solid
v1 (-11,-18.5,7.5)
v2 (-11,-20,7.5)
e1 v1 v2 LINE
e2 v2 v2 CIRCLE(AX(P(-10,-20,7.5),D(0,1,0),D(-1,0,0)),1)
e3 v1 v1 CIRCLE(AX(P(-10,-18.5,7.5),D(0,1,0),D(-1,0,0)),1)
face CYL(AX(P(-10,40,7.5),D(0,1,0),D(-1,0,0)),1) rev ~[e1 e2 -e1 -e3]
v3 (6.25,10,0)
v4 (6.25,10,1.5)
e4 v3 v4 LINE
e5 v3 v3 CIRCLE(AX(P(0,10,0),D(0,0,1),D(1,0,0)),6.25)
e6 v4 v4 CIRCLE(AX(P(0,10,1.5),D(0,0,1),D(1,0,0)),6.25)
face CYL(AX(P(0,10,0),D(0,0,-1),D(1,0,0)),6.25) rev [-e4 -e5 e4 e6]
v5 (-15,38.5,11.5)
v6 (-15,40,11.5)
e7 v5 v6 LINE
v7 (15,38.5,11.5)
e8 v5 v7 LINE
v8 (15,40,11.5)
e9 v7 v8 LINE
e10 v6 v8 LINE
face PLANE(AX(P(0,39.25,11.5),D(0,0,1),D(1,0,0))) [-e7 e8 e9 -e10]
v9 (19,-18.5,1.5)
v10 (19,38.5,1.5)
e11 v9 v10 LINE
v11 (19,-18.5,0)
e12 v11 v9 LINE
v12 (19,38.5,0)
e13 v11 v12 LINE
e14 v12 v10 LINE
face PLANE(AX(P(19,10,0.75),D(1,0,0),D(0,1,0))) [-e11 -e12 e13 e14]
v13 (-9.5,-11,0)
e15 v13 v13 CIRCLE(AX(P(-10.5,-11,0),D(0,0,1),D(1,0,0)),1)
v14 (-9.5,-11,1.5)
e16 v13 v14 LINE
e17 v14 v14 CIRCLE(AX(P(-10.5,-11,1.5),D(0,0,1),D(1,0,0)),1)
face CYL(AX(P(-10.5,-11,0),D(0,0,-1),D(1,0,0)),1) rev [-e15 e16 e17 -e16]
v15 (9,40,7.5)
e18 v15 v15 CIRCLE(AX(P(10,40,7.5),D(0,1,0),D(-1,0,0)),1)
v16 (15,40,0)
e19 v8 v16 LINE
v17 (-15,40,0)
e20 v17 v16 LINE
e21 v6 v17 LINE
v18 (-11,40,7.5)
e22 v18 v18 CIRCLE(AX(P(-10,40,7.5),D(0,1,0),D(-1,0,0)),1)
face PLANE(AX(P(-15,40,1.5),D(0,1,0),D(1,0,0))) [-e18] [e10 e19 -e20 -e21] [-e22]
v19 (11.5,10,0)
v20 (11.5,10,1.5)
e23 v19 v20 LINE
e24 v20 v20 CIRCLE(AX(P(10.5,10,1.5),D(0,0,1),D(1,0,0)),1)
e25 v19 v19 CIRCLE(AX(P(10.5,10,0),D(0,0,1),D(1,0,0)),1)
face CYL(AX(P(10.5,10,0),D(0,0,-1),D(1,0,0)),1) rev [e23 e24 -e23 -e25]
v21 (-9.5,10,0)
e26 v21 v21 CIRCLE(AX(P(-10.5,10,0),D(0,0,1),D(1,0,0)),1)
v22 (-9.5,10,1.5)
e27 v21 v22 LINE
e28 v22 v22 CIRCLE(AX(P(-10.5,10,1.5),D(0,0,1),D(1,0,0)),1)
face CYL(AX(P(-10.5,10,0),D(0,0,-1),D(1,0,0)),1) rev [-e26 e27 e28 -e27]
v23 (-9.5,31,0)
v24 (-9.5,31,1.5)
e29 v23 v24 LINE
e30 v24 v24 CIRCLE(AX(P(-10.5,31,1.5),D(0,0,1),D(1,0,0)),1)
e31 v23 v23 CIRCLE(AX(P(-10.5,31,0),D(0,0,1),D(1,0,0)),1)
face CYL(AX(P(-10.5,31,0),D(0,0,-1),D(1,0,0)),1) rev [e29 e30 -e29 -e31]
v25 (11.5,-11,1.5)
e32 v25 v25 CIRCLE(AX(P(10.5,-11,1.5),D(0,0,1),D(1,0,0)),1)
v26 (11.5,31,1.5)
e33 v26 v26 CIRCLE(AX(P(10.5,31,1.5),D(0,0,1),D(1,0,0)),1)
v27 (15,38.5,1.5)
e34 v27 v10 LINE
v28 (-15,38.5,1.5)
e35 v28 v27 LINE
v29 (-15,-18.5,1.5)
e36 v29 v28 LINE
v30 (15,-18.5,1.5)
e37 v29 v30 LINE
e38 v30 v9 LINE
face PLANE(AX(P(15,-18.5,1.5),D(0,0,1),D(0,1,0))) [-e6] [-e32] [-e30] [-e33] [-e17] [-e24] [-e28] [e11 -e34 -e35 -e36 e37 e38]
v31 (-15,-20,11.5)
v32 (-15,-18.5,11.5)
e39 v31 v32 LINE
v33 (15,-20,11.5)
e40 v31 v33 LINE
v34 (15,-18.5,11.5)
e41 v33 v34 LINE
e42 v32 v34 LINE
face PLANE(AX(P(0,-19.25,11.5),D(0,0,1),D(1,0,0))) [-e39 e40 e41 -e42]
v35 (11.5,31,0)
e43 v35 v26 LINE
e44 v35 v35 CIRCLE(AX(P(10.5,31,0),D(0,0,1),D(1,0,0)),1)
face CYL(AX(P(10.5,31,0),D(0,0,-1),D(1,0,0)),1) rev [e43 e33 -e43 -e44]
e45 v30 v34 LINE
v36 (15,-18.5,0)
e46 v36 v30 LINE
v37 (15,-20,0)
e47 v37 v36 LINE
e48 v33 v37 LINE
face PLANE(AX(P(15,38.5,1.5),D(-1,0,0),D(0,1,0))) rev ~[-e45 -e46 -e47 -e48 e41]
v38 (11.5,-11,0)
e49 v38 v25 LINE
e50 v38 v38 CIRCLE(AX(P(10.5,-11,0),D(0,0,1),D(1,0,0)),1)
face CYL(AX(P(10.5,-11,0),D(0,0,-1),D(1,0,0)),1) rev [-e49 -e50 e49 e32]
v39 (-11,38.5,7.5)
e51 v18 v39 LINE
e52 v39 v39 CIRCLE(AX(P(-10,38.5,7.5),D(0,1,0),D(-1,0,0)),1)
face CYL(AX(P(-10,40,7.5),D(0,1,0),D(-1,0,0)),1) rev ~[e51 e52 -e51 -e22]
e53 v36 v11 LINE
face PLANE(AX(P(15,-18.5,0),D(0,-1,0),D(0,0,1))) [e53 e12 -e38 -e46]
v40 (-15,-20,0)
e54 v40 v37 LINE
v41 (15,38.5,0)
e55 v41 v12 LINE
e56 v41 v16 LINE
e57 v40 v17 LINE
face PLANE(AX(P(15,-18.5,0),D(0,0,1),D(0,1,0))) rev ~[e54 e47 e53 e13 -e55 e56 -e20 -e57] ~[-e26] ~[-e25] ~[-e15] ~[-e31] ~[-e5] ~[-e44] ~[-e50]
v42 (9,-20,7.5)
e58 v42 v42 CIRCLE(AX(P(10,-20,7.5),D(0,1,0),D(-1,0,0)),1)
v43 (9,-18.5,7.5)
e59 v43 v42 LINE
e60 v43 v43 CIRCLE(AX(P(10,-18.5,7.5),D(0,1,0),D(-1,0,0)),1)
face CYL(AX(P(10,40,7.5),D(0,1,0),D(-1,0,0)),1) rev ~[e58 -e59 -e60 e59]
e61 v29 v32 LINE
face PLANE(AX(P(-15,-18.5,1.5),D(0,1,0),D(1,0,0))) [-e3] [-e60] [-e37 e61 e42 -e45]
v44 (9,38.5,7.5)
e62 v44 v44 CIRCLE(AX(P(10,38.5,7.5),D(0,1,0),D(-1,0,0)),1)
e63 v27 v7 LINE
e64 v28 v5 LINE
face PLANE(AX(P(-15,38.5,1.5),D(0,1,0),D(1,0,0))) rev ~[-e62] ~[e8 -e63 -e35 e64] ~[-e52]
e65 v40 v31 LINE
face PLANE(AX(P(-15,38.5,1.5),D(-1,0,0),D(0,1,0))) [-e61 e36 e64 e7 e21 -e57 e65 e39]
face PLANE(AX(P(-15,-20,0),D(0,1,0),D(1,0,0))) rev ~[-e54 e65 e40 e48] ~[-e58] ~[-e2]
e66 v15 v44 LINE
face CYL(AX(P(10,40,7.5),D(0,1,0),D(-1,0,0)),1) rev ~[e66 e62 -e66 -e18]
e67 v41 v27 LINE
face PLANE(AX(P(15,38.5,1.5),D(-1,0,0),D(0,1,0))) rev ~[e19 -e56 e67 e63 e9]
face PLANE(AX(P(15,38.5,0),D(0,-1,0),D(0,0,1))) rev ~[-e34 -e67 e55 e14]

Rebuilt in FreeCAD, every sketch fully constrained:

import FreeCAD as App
import Part
import Sketcher
from FreeCAD import Vector
Q = App.Units.Quantity

doc = App.newDocument("Part")
body = doc.addObject("PartDesign::Body", "Body")

sketch1 = doc.addObject("Sketcher::SketchObject", "Sketch")
body.addObject(sketch1)
sketch1.AttachmentSupport = (doc.XY_Plane, [""])
sketch1.MapMode = "FlatFace"
sketch1.addGeometry(Part.LineSegment(Vector(-15, 40, 0), Vector(-15, -20, 0)), False)
sketch1.addGeometry(Part.LineSegment(Vector(-15, -20, 0), Vector(15, -20, 0)), False)
sketch1.addGeometry(Part.LineSegment(Vector(15, -20, 0), Vector(15, 40, 0)), False)
sketch1.addGeometry(Part.LineSegment(Vector(15, 40, 0), Vector(-15, 40, 0)), False)
sketch1.addGeometry(Part.Circle(Vector(-10.5, -11, 0), Vector(0, 0, 1), 1), False)
sketch1.addGeometry(Part.Circle(Vector(10.5, -11, 0), Vector(0, 0, 1), 1), False)
sketch1.addGeometry(Part.Circle(Vector(-10.5, 10, 0), Vector(0, 0, 1), 1), False)
sketch1.addGeometry(Part.Circle(Vector(-10.5, 31, 0), Vector(0, 0, 1), 1), False)
sketch1.addGeometry(Part.Circle(Vector(0, 10, 0), Vector(0, 0, 1), 6.25), False)
sketch1.addGeometry(Part.Circle(Vector(10.5, 10, 0), Vector(0, 0, 1), 1), False)
sketch1.addGeometry(Part.Circle(Vector(10.5, 31, 0), Vector(0, 0, 1), 1), False)
sketch1.addConstraint(Sketcher.Constraint("Coincident", 0, 2, 1, 1))
sketch1.addConstraint(Sketcher.Constraint("Coincident", 1, 2, 2, 1))
sketch1.addConstraint(Sketcher.Constraint("Coincident", 2, 2, 3, 1))
sketch1.addConstraint(Sketcher.Constraint("Coincident", 3, 2, 0, 1))
sketch1.addConstraint(Sketcher.Constraint("Vertical", 0))
sketch1.addConstraint(Sketcher.Constraint("Horizontal", 1))
sketch1.addConstraint(Sketcher.Constraint("Vertical", 2))
sketch1.addConstraint(Sketcher.Constraint("Horizontal", 3))
sketch1.addConstraint(Sketcher.Constraint("Equal", 4, 5))
sketch1.addConstraint(Sketcher.Constraint("Equal", 5, 6))
sketch1.addConstraint(Sketcher.Constraint("Equal", 6, 7))
sketch1.addConstraint(Sketcher.Constraint("Equal", 7, 9))
sketch1.addConstraint(Sketcher.Constraint("Equal", 9, 10))
sketch1.addConstraint(Sketcher.Constraint("Symmetric", 4, 3, 5, 3, -2))
sketch1.addConstraint(Sketcher.Constraint("Symmetric", 6, 3, 9, 3, -2))
sketch1.addConstraint(Sketcher.Constraint("Symmetric", 7, 3, 10, 3, -2))
sketch1.addConstraint(Sketcher.Constraint("PointOnObject", 8, 3, -2))
sketch1.addConstraint(Sketcher.Constraint("Horizontal", 6, 3, 8, 3))
sketch1.addConstraint(Sketcher.Constraint("Vertical", 4, 3, 6, 3))
sketch1.addConstraint(Sketcher.Constraint("Vertical", 6, 3, 7, 3))
sketch1.addConstraint(Sketcher.Constraint("Diameter", 4, Q("2 mm")))
sketch1.addConstraint(Sketcher.Constraint("Diameter", 8, Q("12.5 mm")))
sketch1.addConstraint(Sketcher.Constraint("DistanceX", 1, 1, 1, 2, Q("30 mm")))
sketch1.addConstraint(Sketcher.Constraint("DistanceY", 0, 2, 0, 1, Q("60 mm")))
sketch1.addConstraint(Sketcher.Constraint("DistanceY", 4, 3, -1, 1, Q("11 mm")))
sketch1.addConstraint(Sketcher.Constraint("DistanceY", -1, 1, 6, 3, Q("10 mm")))
sketch1.addConstraint(Sketcher.Constraint("DistanceY", -1, 1, 7, 3, Q("31 mm")))
sketch1.addConstraint(Sketcher.Constraint("DistanceX", 0, 2, -1, 1, Q("15 mm")))
sketch1.addConstraint(Sketcher.Constraint("DistanceY", 0, 2, -1, 1, Q("20 mm")))
sketch1.addConstraint(Sketcher.Constraint("DistanceX", 4, 3, 5, 3, Q("21 mm")))
pad1 = doc.addObject("PartDesign::Pad", "Pad")
body.addObject(pad1)
pad1.Profile = sketch1
pad1.Length = 1.5

sketch2 = doc.addObject("Sketcher::SketchObject", "Sketch001")
body.addObject(sketch2)
sketch2.AttachmentSupport = (doc.XY_Plane, [""])
sketch2.MapMode = "FlatFace"
sketch2.AttachmentOffset = App.Placement(Vector(0, 0, 1.5), App.Rotation())
sketch2.addGeometry(Part.LineSegment(Vector(-15, 40, 0), Vector(-15, 38.5, 0)), False)
sketch2.addGeometry(Part.LineSegment(Vector(-15, 38.5, 0), Vector(15, 38.5, 0)), False)
sketch2.addGeometry(Part.LineSegment(Vector(15, 38.5, 0), Vector(15, 40, 0)), False)
sketch2.addGeometry(Part.LineSegment(Vector(15, 40, 0), Vector(-15, 40, 0)), False)
sketch2.addGeometry(Part.LineSegment(Vector(-15, -18.5, 0), Vector(-15, -20, 0)), False)
sketch2.addGeometry(Part.LineSegment(Vector(-15, -20, 0), Vector(15, -20, 0)), False)
sketch2.addGeometry(Part.LineSegment(Vector(15, -20, 0), Vector(15, -18.5, 0)), False)
sketch2.addGeometry(Part.LineSegment(Vector(15, -18.5, 0), Vector(-15, -18.5, 0)), False)
sketch2.addConstraint(Sketcher.Constraint("Coincident", 0, 2, 1, 1))
sketch2.addConstraint(Sketcher.Constraint("Coincident", 1, 2, 2, 1))
sketch2.addConstraint(Sketcher.Constraint("Coincident", 2, 2, 3, 1))
sketch2.addConstraint(Sketcher.Constraint("Coincident", 3, 2, 0, 1))
sketch2.addConstraint(Sketcher.Constraint("Coincident", 4, 2, 5, 1))
sketch2.addConstraint(Sketcher.Constraint("Coincident", 5, 2, 6, 1))
sketch2.addConstraint(Sketcher.Constraint("Coincident", 6, 2, 7, 1))
sketch2.addConstraint(Sketcher.Constraint("Coincident", 7, 2, 4, 1))
sketch2.addConstraint(Sketcher.Constraint("Vertical", 0))
sketch2.addConstraint(Sketcher.Constraint("Horizontal", 1))
sketch2.addConstraint(Sketcher.Constraint("Vertical", 2))
sketch2.addConstraint(Sketcher.Constraint("Horizontal", 3))
sketch2.addConstraint(Sketcher.Constraint("Vertical", 4))
sketch2.addConstraint(Sketcher.Constraint("Horizontal", 5))
sketch2.addConstraint(Sketcher.Constraint("Vertical", 6))
sketch2.addConstraint(Sketcher.Constraint("Horizontal", 7))
sketch2.addConstraint(Sketcher.Constraint("Vertical", 3, 2, 4, 2))
sketch2.addConstraint(Sketcher.Constraint("Vertical", 2, 2, 5, 2))
sketch2.addConstraint(Sketcher.Constraint("Equal", 2, 4))
sketch2.addConstraint(Sketcher.Constraint("DistanceX", 1, 1, 1, 2, Q("30 mm")))
sketch2.addConstraint(Sketcher.Constraint("DistanceY", 0, 2, 0, 1, Q("1.5 mm")))
sketch2.addConstraint(Sketcher.Constraint("DistanceX", 0, 2, -1, 1, Q("15 mm")))
sketch2.addConstraint(Sketcher.Constraint("DistanceY", -1, 1, 2, 2, Q("40 mm")))
sketch2.addConstraint(Sketcher.Constraint("DistanceY", 4, 2, -1, 1, Q("20 mm")))
pad2 = doc.addObject("PartDesign::Pad", "Pad001")
body.addObject(pad2)
pad2.Profile = sketch2
pad2.Length = 10

sketch3 = doc.addObject("Sketcher::SketchObject", "Sketch002")
body.addObject(sketch3)
sketch3.AttachmentSupport = (doc.XZ_Plane, [""])
sketch3.MapMode = "FlatFace"
sketch3.AttachmentOffset = App.Placement(Vector(0, 0, -40), App.Rotation())
sketch3.addGeometry(Part.Circle(Vector(10, 7.5, 0), Vector(0, 0, 1), 1), False)
sketch3.addGeometry(Part.Circle(Vector(-10, 7.5, 0), Vector(0, 0, 1), 1), False)
sketch3.addConstraint(Sketcher.Constraint("Equal", 0, 1))
sketch3.addConstraint(Sketcher.Constraint("Symmetric", 0, 3, 1, 3, -2))
sketch3.addConstraint(Sketcher.Constraint("Diameter", 0, Q("2 mm")))
sketch3.addConstraint(Sketcher.Constraint("DistanceX", -1, 1, 0, 3, Q("10 mm")))
sketch3.addConstraint(Sketcher.Constraint("DistanceY", -1, 1, 0, 3, Q("7.5 mm")))
pocket1 = doc.addObject("PartDesign::Pocket", "Pocket")
body.addObject(pocket1)
pocket1.Profile = sketch3
pocket1.Type = "ThroughAll"
pocket1.Reversed = True

sketch4 = doc.addObject("Sketcher::SketchObject", "Sketch003")
body.addObject(sketch4)
sketch4.AttachmentSupport = (doc.YZ_Plane, [""])
sketch4.MapMode = "FlatFace"
sketch4.AttachmentOffset = App.Placement(Vector(0, 0, 15), App.Rotation())
sketch4.addGeometry(Part.LineSegment(Vector(-18.5, 1.5, 0), Vector(-18.5, 0, 0)), False)
sketch4.addGeometry(Part.LineSegment(Vector(-18.5, 0, 0), Vector(38.5, 0, 0)), False)
sketch4.addGeometry(Part.LineSegment(Vector(38.5, 0, 0), Vector(38.5, 1.5, 0)), False)
sketch4.addGeometry(Part.LineSegment(Vector(38.5, 1.5, 0), Vector(-18.5, 1.5, 0)), False)
sketch4.addConstraint(Sketcher.Constraint("Coincident", 0, 2, 1, 1))
sketch4.addConstraint(Sketcher.Constraint("Coincident", 1, 2, 2, 1))
sketch4.addConstraint(Sketcher.Constraint("Coincident", 2, 2, 3, 1))
sketch4.addConstraint(Sketcher.Constraint("Coincident", 3, 2, 0, 1))
sketch4.addConstraint(Sketcher.Constraint("Vertical", 0))
sketch4.addConstraint(Sketcher.Constraint("Horizontal", 1))
sketch4.addConstraint(Sketcher.Constraint("Vertical", 2))
sketch4.addConstraint(Sketcher.Constraint("Horizontal", 3))
sketch4.addConstraint(Sketcher.Constraint("PointOnObject", 0, 2, -1))
sketch4.addConstraint(Sketcher.Constraint("DistanceX", 1, 1, 1, 2, Q("57 mm")))
sketch4.addConstraint(Sketcher.Constraint("DistanceY", 0, 2, 0, 1, Q("1.5 mm")))
sketch4.addConstraint(Sketcher.Constraint("DistanceX", 0, 2, -1, 1, Q("18.5 mm")))
pad3 = doc.addObject("PartDesign::Pad", "Pad002")
body.addObject(pad3)
pad3.Profile = sketch4
pad3.Length = 4

doc.recompute()
